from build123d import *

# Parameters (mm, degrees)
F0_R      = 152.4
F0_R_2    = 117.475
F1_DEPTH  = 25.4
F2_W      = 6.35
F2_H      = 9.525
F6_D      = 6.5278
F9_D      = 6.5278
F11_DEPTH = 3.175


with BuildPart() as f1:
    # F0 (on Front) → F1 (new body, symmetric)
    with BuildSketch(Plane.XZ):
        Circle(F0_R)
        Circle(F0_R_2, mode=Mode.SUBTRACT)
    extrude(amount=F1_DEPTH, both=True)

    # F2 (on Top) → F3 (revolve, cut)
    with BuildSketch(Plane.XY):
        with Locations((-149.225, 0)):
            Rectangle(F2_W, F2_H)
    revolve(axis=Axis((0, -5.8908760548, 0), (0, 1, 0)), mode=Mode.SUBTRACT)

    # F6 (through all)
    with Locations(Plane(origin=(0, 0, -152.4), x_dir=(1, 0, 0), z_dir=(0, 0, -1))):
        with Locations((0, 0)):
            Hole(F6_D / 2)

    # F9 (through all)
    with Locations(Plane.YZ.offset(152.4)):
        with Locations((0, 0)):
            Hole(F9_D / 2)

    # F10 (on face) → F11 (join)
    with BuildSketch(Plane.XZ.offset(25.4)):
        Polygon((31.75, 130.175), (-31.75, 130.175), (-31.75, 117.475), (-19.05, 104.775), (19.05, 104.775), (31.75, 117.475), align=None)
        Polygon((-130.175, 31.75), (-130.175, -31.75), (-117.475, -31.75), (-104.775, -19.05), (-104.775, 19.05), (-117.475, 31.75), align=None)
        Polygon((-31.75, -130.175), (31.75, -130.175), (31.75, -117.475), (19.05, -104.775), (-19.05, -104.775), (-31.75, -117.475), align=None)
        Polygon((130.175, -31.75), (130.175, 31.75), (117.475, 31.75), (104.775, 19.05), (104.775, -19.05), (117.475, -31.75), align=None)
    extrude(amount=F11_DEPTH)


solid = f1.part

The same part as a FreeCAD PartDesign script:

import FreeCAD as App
import Part
import Sketcher
from FreeCAD import Vector
Q = App.Units.Quantity

doc = App.newDocument("Part")
body = doc.addObject("PartDesign::Body", "Body")

sketch1 = doc.addObject("Sketcher::SketchObject", "Sketch")
body.addObject(sketch1)
sketch1.AttachmentSupport = (doc.XZ_Plane, [""])
sketch1.MapMode = "FlatFace"
sketch1.addGeometry(Part.Circle(Vector(0, 0, 0), Vector(0, 0, 1), 152), False)
sketch1.addGeometry(Part.Circle(Vector(0, 0, 0), Vector(0, 0, 1), 117), False)
sketch1.addConstraint(Sketcher.Constraint("Coincident", 0, 3, -1, 1))
sketch1.addConstraint(Sketcher.Constraint("Coincident", 1, 3, -1, 1))
sketch1.addConstraint(Sketcher.Constraint("Diameter", 0, Q("12 in")))
sketch1.addConstraint(Sketcher.Constraint("Diameter", 1, Q("9.25 in")))
pad1 = doc.addObject("PartDesign::Pad", "Pad")
body.addObject(pad1)
pad1.Profile = sketch1
pad1.Length = Q("2 in")
pad1.Midplane = True

sketch2 = doc.addObject("Sketcher::SketchObject", "Sketch001")
body.addObject(sketch2)
sketch2.AttachmentSupport = (doc.XY_Plane, [""])
sketch2.MapMode = "FlatFace"
sketch2.addGeometry(Part.LineSegment(Vector(-152, 5, 0), Vector(-152, -5, 0)), False)
sketch2.addGeometry(Part.LineSegment(Vector(-152, -5, 0), Vector(-146, -5, 0)), False)
sketch2.addGeometry(Part.LineSegment(Vector(-146, -5, 0), Vector(-146, 5, 0)), False)
sketch2.addGeometry(Part.LineSegment(Vector(-146, 5, 0), Vector(-152, 5, 0)), False)
sketch2.addConstraint(Sketcher.Constraint("Coincident", 0, 2, 1, 1))
sketch2.addConstraint(Sketcher.Constraint("Coincident", 1, 2, 2, 1))
sketch2.addConstraint(Sketcher.Constraint("Coincident", 2, 2, 3, 1))
sketch2.addConstraint(Sketcher.Constraint("Coincident", 3, 2, 0, 1))
sketch2.addConstraint(Sketcher.Constraint("Vertical", 0))
sketch2.addConstraint(Sketcher.Constraint("Horizontal", 1))
sketch2.addConstraint(Sketcher.Constraint("Vertical", 2))
sketch2.addConstraint(Sketcher.Constraint("Horizontal", 3))
sketch2.addConstraint(Sketcher.Constraint("DistanceX", 0, 2, -1, 1, Q("6 in")))
sketch2.addConstraint(Sketcher.Constraint("DistanceX", 1, 1, 1, 2, Q("0.25 in")))
sketch2.addConstraint(Sketcher.Constraint("DistanceY", 0, 2, 0, 1, Q("0.375 in")))
sketch2.addConstraint(Sketcher.Constraint("DistanceY", 0, 2, -1, 1, Q("0.1875 in")))
groove = doc.addObject("PartDesign::Groove", "Groove")
body.addObject(groove)
groove.Profile = sketch2
groove.ReferenceAxis = (sketch2, ["V_Axis"])
groove.Angle = 360

sketch3 = doc.addObject("Sketcher::SketchObject", "Sketch002")
body.addObject(sketch3)
sketch3.AttachmentSupport = (doc.XY_Plane, [""])
sketch3.MapMode = "FlatFace"
sketch3.AttachmentOffset = App.Placement(Vector(0, 0, -6 * 25.4), App.Rotation())
sketch3.addGeometry(Part.Circle(Vector(0, 0, 0), Vector(0, 0, 1), 3.3), False)
sketch3.addConstraint(Sketcher.Constraint("Coincident", 0, 3, -1, 1))
sketch3.addConstraint(Sketcher.Constraint("Diameter", 0, Q("0.257 in")))
doc.recompute()
hole = doc.addObject("PartDesign::Hole", "Hole")
body.addObject(hole)
hole.Profile = sketch3
hole.ThreadType = "None"
hole.Diameter = Q("0.257 in")
hole.DepthType = "ThroughAll"
hole.Reversed = True

sketch4 = doc.addObject("Sketcher::SketchObject", "Sketch003")
body.addObject(sketch4)
sketch4.AttachmentSupport = (doc.YZ_Plane, [""])
sketch4.MapMode = "FlatFace"
sketch4.AttachmentOffset = App.Placement(Vector(0, 0, 6 * 25.4), App.Rotation())
sketch4.addGeometry(Part.Circle(Vector(0, 0, 0), Vector(0, 0, 1), 3.3), False)
sketch4.addConstraint(Sketcher.Constraint("Coincident", 0, 3, -1, 1))
sketch4.addConstraint(Sketcher.Constraint("Diameter", 0, Q("0.257 in")))
doc.recompute()
hole2 = doc.addObject("PartDesign::Hole", "Hole001")
body.addObject(hole2)
hole2.Profile = sketch4
hole2.ThreadType = "None"
hole2.Diameter = Q("0.257 in")
hole2.DepthType = "ThroughAll"

sketch5 = doc.addObject("Sketcher::SketchObject", "Sketch004")
body.addObject(sketch5)
sketch5.AttachmentSupport = (doc.XZ_Plane, [""])
sketch5.MapMode = "FlatFace"
sketch5.AttachmentOffset = App.Placement(Vector(0, 0, 1 * 25.4), App.Rotation())
sketch5.addGeometry(Part.LineSegment(Vector(32, 130, 0), Vector(-32, 130, 0)), False)
sketch5.addGeometry(Part.LineSegment(Vector(-32, 130, 0), Vector(-32, 117, 0)), False)
sketch5.addGeometry(Part.LineSegment(Vector(-32, 117, 0), Vector(-19, 105, 0)), False)
sketch5.addGeometry(Part.LineSegment(Vector(-19, 105, 0), Vector(19, 105, 0)), False)
sketch5.addGeometry(Part.LineSegment(Vector(19, 105, 0), Vector(32, 117, 0)), False)
sketch5.addGeometry(Part.LineSegment(Vector(32, 117, 0), Vector(32, 130, 0)), False)
sketch5.addGeometry(Part.LineSegment(Vector(-130, 32, 0), Vector(-130, -32, 0)), False)
sketch5.addGeometry(Part.LineSegment(Vector(-130, -32, 0), Vector(-117, -32, 0)), False)
sketch5.addGeometry(Part.LineSegment(Vector(-117, -32, 0), Vector(-105, -19, 0)), False)
sketch5.addGeometry(Part.LineSegment(Vector(-105, -19, 0), Vector(-105, 19, 0)), False)
sketch5.addGeometry(Part.LineSegment(Vector(-105, 19, 0), Vector(-117, 32, 0)), False)
sketch5.addGeometry(Part.LineSegment(Vector(-117, 32, 0), Vector(-130, 32, 0)), False)
sketch5.addGeometry(Part.LineSegment(Vector(-32, -130, 0), Vector(32, -130, 0)), False)
sketch5.addGeometry(Part.LineSegment(Vector(32, -130, 0), Vector(32, -117, 0)), False)
sketch5.addGeometry(Part.LineSegment(Vector(32, -117, 0), Vector(19, -105, 0)), False)
sketch5.addGeometry(Part.LineSegment(Vector(19, -105, 0), Vector(-19, -105, 0)), False)
sketch5.addGeometry(Part.LineSegment(Vector(-19, -105, 0), Vector(-32, -117, 0)), False)
sketch5.addGeometry(Part.LineSegment(Vector(-32, -117, 0), Vector(-32, -130, 0)), False)
sketch5.addGeometry(Part.LineSegment(Vector(130, -32, 0), Vector(130, 32, 0)), False)
sketch5.addGeometry(Part.LineSegment(Vector(130, 32, 0), Vector(117, 32, 0)), False)
sketch5.addGeometry(Part.LineSegment(Vector(117, 32, 0), Vector(105, 19, 0)), False)
sketch5.addGeometry(Part.LineSegment(Vector(105, 19, 0), Vector(105, -19, 0)), False)
sketch5.addGeometry(Part.LineSegment(Vector(105, -19, 0), Vector(117, -32, 0)), False)
sketch5.addGeometry(Part.LineSegment(Vector(117, -32, 0), Vector(130, -32, 0)), False)
sketch5.addConstraint(Sketcher.Constraint("Coincident", 0, 2, 1, 1))
sketch5.addConstraint(Sketcher.Constraint("Coincident", 1, 2, 2, 1))
sketch5.addConstraint(Sketcher.Constraint("Coincident", 2, 2, 3, 1))
sketch5.addConstraint(Sketcher.Constraint("Coincident", 3, 2, 4, 1))
sketch5.addConstraint(Sketcher.Constraint("Coincident", 4, 2, 5, 1))
sketch5.addConstraint(Sketcher.Constraint("Coincident", 5, 2, 0, 1))
sketch5.addConstraint(Sketcher.Constraint("Coincident", 6, 2, 7, 1))
sketch5.addConstraint(Sketcher.Constraint("Coincident", 7, 2, 8, 1))
sketch5.addConstraint(Sketcher.Constraint("Coincident", 8, 2, 9, 1))
sketch5.addConstraint(Sketcher.Constraint("Coincident", 9, 2, 10, 1))
sketch5.addConstraint(Sketcher.Constraint("Coincident", 10, 2, 11, 1))
sketch5.addConstraint(Sketcher.Constraint("Coincident", 11, 2, 6, 1))
sketch5.addConstraint(Sketcher.Constraint("Coincident", 12, 2, 13, 1))
sketch5.addConstraint(Sketcher.Constraint("Coincident", 13, 2, 14, 1))
sketch5.addConstraint(Sketcher.Constraint("Coincident", 14, 2, 15, 1))
sketch5.addConstraint(Sketcher.Constraint("Coincident", 15, 2, 16, 1))
sketch5.addConstraint(Sketcher.Constraint("Coincident", 16, 2, 17, 1))
sketch5.addConstraint(Sketcher.Constraint("Coincident", 17, 2, 12, 1))
sketch5.addConstraint(Sketcher.Constraint("Coincident", 18, 2, 19, 1))
sketch5.addConstraint(Sketcher.Constraint("Coincident", 19, 2, 20, 1))
sketch5.addConstraint(Sketcher.Constraint("Coincident", 20, 2, 21, 1))
sketch5.addConstraint(Sketcher.Constraint("Coincident", 21, 2, 22, 1))
sketch5.addConstraint(Sketcher.Constraint("Coincident", 22, 2, 23, 1))
sketch5.addConstraint(Sketcher.Constraint("Coincident", 23, 2, 18, 1))
sketch5.addConstraint(Sketcher.Constraint("Horizontal", 0))
sketch5.addConstraint(Sketcher.Constraint("Vertical", 1))
sketch5.addConstraint(Sketcher.Constraint("Horizontal", 3))
sketch5.addConstraint(Sketcher.Constraint("Vertical", 5))
sketch5.addConstraint(Sketcher.Constraint("Vertical", 6))
sketch5.addConstraint(Sketcher.Constraint("Horizontal", 7))
sketch5.addConstraint(Sketcher.Constraint("Vertical", 9))
sketch5.addConstraint(Sketcher.Constraint("Horizontal", 11))
sketch5.addConstraint(Sketcher.Constraint("Horizontal", 12))
sketch5.addConstraint(Sketcher.Constraint("Vertical", 13))
sketch5.addConstraint(Sketcher.Constraint("Horizontal", 15))
sketch5.addConstraint(Sketcher.Constraint("Vertical", 17))
sketch5.addConstraint(Sketcher.Constraint("Vertical", 18))
sketch5.addConstraint(Sketcher.Constraint("Horizontal", 19))
sketch5.addConstraint(Sketcher.Constraint("Vertical", 21))
sketch5.addConstraint(Sketcher.Constraint("Horizontal", 23))
sketch5.addConstraint(Sketcher.Constraint("Symmetric", 0, 2, 12, 2, -1, 1))
sketch5.addConstraint(Sketcher.Constraint("Symmetric", 2, 2, 14, 2, -1, 1))
sketch5.addConstraint(Sketcher.Constraint("Symmetric", 4, 2, 16, 2, -1, 1))
sketch5.addConstraint(Sketcher.Constraint("Symmetric", 6, 2, 18, 2, -1, 1))
sketch5.addConstraint(Sketcher.Constraint("Symmetric", 8, 2, 20, 2, -1, 1))
sketch5.addConstraint(Sketcher.Constraint("Symmetric", 10, 2, 22, 2, -1, 1))
sketch5.addConstraint(Sketcher.Constraint("Symmetric", 1, 2, 4, 2, -2))
sketch5.addConstraint(Sketcher.Constraint("Symmetric", 10, 2, 19, 2, -2))
sketch5.addConstraint(Sketcher.Constraint("Perpendicular", 2, 4))
sketch5.addConstraint(Sketcher.Constraint("Parallel", 4, 8))
sketch5.addConstraint(Sketcher.Constraint("Perpendicular", 8, 10))
sketch5.addConstraint(Sketcher.Constraint("Parallel", 10, 14))
sketch5.addConstraint(Sketcher.Constraint("Perpendicular", 14, 16))
sketch5.addConstraint(Sketcher.Constraint("Parallel", 16, 20))
sketch5.addConstraint(Sketcher.Constraint("Perpendicular", 20, 22))
sketch5.addConstraint(Sketcher.Constraint("Horizontal", 9, 2, 20, 2))
sketch5.addConstraint(Sketcher.Constraint("Equal", 23, 1))
sketch5.addConstraint(Sketcher.Constraint("Equal", 12, 6))
sketch5.addConstraint(Sketcher.Constraint("Equal", 15, 9))
sketch5.addConstraint(Sketcher.Constraint("DistanceX", 0, 2, 0, 1, Q("2.5 in")))
sketch5.addConstraint(Sketcher.Constraint("DistanceX", 3, 1, 3, 2, Q("1.5 in")))
sketch5.addConstraint(Sketcher.Constraint("DistanceX", 7, 1, 7, 2, Q("0.5 in")))
sketch5.addConstraint(Sketcher.Constraint("DistanceY", -1, 1, 0, 2, Q("5.125 in")))
sketch5.addConstraint(Sketcher.Constraint("DistanceX", 6, 2, -1, 1, Q("5.125 in")))
pad2 = doc.addObject("PartDesign::Pad", "Pad001")
body.addObject(pad2)
pad2.Profile = sketch5
pad2.Length = Q("0.125 in")

doc.recompute()
